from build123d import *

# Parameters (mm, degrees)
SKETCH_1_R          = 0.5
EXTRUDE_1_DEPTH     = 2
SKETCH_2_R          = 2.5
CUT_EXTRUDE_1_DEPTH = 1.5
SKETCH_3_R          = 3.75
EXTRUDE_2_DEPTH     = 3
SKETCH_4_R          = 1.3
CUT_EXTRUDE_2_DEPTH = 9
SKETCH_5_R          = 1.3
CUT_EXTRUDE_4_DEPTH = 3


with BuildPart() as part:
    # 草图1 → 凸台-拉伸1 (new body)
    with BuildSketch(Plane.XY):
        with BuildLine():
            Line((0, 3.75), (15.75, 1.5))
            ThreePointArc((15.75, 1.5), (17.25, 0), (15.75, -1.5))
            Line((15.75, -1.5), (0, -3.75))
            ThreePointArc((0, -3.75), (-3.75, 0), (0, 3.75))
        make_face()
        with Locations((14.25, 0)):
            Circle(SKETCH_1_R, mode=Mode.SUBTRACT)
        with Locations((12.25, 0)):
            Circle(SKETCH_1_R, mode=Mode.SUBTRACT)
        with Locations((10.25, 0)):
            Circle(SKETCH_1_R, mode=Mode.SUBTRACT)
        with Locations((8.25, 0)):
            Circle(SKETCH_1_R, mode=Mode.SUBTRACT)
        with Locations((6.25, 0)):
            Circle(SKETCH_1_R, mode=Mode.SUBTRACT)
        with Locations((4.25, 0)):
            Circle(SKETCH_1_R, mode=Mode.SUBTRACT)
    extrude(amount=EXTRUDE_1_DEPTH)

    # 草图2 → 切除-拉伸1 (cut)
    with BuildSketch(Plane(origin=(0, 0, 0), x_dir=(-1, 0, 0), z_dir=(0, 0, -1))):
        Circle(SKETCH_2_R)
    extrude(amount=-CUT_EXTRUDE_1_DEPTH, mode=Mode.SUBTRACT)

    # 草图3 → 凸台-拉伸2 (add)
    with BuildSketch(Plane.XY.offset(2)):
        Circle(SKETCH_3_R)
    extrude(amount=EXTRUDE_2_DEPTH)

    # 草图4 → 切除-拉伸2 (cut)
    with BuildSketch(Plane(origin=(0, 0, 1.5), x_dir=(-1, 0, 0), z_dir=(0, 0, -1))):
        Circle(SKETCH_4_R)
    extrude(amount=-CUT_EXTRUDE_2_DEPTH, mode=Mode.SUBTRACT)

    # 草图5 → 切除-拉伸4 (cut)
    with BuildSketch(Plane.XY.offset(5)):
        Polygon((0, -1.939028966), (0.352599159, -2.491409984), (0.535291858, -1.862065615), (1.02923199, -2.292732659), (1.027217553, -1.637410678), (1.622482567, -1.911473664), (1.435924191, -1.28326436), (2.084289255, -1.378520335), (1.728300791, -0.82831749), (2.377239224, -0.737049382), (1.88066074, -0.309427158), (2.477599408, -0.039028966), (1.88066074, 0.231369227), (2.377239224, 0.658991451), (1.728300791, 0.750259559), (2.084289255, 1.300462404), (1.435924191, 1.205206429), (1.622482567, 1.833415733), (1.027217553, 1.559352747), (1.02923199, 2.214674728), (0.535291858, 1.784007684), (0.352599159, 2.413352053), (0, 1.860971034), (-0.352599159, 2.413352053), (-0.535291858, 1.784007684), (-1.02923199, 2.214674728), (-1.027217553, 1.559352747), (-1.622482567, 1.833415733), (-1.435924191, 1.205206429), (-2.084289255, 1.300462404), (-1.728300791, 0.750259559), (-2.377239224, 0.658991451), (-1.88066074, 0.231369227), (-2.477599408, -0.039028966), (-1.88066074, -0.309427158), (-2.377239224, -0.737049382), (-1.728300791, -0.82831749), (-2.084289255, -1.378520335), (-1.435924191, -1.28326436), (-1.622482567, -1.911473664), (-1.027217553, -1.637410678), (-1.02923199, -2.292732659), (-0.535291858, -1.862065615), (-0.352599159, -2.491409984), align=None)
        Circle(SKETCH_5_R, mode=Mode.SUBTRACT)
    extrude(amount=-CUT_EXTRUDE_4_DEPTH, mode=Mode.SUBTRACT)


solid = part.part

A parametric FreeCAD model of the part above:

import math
import FreeCAD as App
import Part
import Sketcher

V = App.Vector


def add_polygon(sketch, points):
    """Adds a closed chain of lines whose ends are joined by coincident constraints."""
    first, n = sketch.GeometryCount, len(points)
    for a, b in zip(points, points[1:] + points[:1]):
        sketch.addGeometry(Part.LineSegment(App.Vector(*a, 0), App.Vector(*b, 0)), False)
    for i in range(n):
        sketch.addConstraint(Sketcher.Constraint("Coincident", first + i, 2, first + (i + 1) % n, 1))

doc = App.newDocument("Part")
params = doc.addObject("Spreadsheet::Sheet", "Params")
for row, (alias, value) in enumerate([
    ("sketch1_diameter", "1 mm"),
    ("sketch1_radius", "1.5 mm"),
    ("sketch1_radius2", "3.75 mm"),
    ("pad1_length", "2 mm"),
    ("sketch2_diameter", "5 mm"),
    ("pocket1_length", "1.5 mm"),
    ("sketch3_diameter", "7.5 mm"),
    ("pad2_length", "3 mm"),
    ("sketch4_diameter", "2.6 mm"),
    ("pocket2_length", "9 mm"),
    ("sketch5_diameter", "2.6 mm"),
    ("pocket3_length", "3 mm"),
], start=1):
    params.set(f"A{row}", alias)
    params.set(f"B{row}", "=" + value)
    params.setAlias(f"B{row}", alias)

body = doc.addObject("PartDesign::Body", "Body")

sketch1 = body.newObject("Sketcher::SketchObject", "Sketch")
sketch1.AttachmentSupport = (doc.getObject("XY_Plane"), [""])
sketch1.MapMode = "FlatFace"
sketch1.addGeometry(Part.LineSegment(V(15.75, 1.5, 0), V(0, 3.75, 0)), False)
sketch1.addGeometry(Part.ArcOfCircle(Part.Circle(V(0, 0, 0), V(0, 0, 1), 3.75), math.radians(90), math.radians(270)), False)
sketch1.addGeometry(Part.LineSegment(V(0, -3.75, 0), V(15.75, -1.5, 0)), False)
sketch1.addGeometry(Part.ArcOfCircle(Part.Circle(V(15.75, 0, 0), V(0, 0, 1), 1.5), math.radians(-90), math.radians(90)), False)
sketch1.addGeometry(Part.Circle(V(14.25, 0, 0), V(0, 0, 1), 0.5), False)
sketch1.addGeometry(Part.Circle(V(12.25, 0, 0), V(0, 0, 1), 0.5), False)
sketch1.addGeometry(Part.Circle(V(10.25, 0, 0), V(0, 0, 1), 0.5), False)
sketch1.addGeometry(Part.Circle(V(8.25, 0, 0), V(0, 0, 1), 0.5), False)
sketch1.addGeometry(Part.Circle(V(6.25, 0, 0), V(0, 0, 1), 0.5), False)
sketch1.addGeometry(Part.Circle(V(4.25, 0, 0), V(0, 0, 1), 0.5), False)
sketch1.addConstraint(Sketcher.Constraint("Coincident", 0, 2, 1, 1))
sketch1.addConstraint(Sketcher.Constraint("Coincident", 1, 2, 2, 1))
sketch1.addConstraint(Sketcher.Constraint("Coincident", 2, 2, 3, 1))
sketch1.addConstraint(Sketcher.Constraint("Coincident", 3, 2, 0, 1))
sketch1.addConstraint(Sketcher.Constraint("Coincident", 1, 3, -1, 1))
sketch1.addConstraint(Sketcher.Constraint("Equal", 4, 5))
sketch1.addConstraint(Sketcher.Constraint("Equal", 5, 6))
sketch1.addConstraint(Sketcher.Constraint("Equal", 6, 7))
sketch1.addConstraint(Sketcher.Constraint("Equal", 7, 8))
sketch1.addConstraint(Sketcher.Constraint("Equal", 8, 9))
sketch1.addConstraint(Sketcher.Constraint("Symmetric", 2, 2, 3, 2, -1))
sketch1.addConstraint(Sketcher.Constraint("PointOnObject", 4, 3, -1))
sketch1.addConstraint(Sketcher.Constraint("PointOnObject", 5, 3, -1))
sketch1.addConstraint(Sketcher.Constraint("PointOnObject", 6, 3, -1))
sketch1.addConstraint(Sketcher.Constraint("PointOnObject", 7, 3, -1))
sketch1.addConstraint(Sketcher.Constraint("PointOnObject", 8, 3, -1))
sketch1.addConstraint(Sketcher.Constraint("PointOnObject", 9, 3, -1))
sketch1.addConstraint(Sketcher.Constraint("PointOnObject", 0, 2, -2))
sketch1.addConstraint(Sketcher.Constraint("PointOnObject", 1, 2, -2))
sketch1.addConstraint(Sketcher.Constraint("Vertical", 3, 3, 2, 2))
sketch1.addConstraint(Sketcher.Constraint("Diameter", 4, 1.0))
sketch1.addConstraint(Sketcher.Constraint("Radius", 3, 1.5))
sketch1.addConstraint(Sketcher.Constraint("Radius", 1, 3.75))
sketch1.addConstraint(Sketcher.Constraint("DistanceX", 5, 3, 4, 3, 2.0))
sketch1.addConstraint(Sketcher.Constraint("DistanceX", 6, 3, 5, 3, 2.0))
sketch1.addConstraint(Sketcher.Constraint("DistanceX", 7, 3, 6, 3, 2.0))
sketch1.addConstraint(Sketcher.Constraint("DistanceX", 8, 3, 7, 3, 2.0))
sketch1.addConstraint(Sketcher.Constraint("DistanceX", 9, 3, 8, 3, 2.0))
sketch1.addConstraint(Sketcher.Constraint("DistanceX", 4, 3, 3, 3, 1.5))
sketch1.addConstraint(Sketcher.Constraint("DistanceX", -1, 1, 3, 3, 15.75))
sketch1.setExpression("Constraints[20]", "Params.sketch1_diameter")
sketch1.setExpression("Constraints[21]", "Params.sketch1_radius")
sketch1.setExpression("Constraints[22]", "Params.sketch1_radius2")
pad1 = body.newObject("PartDesign::Pad", "Pad")
pad1.Profile = sketch1
pad1.setExpression("Length", "Params.pad1_length")

sketch2 = body.newObject("Sketcher::SketchObject", "Sketch001")
sketch2.AttachmentSupport = (doc.getObject("XY_Plane"), [""])
sketch2.MapMode = "FlatFace"
sketch2.addGeometry(Part.Circle(V(0, 0, 0), V(0, 0, 1), 2.5), False)
sketch2.addConstraint(Sketcher.Constraint("Coincident", 0, 3, -1, 1))
sketch2.addConstraint(Sketcher.Constraint("Diameter", 0, 5.0))
sketch2.setExpression("Constraints[1]", "Params.sketch2_diameter")
pocket1 = body.newObject("PartDesign::Pocket", "Pocket")
pocket1.Profile = sketch2
pocket1.setExpression("Length", "Params.pocket1_length")
pocket1.Reversed = True

sketch3 = body.newObject("Sketcher::SketchObject", "Sketch002")
sketch3.AttachmentSupport = (doc.getObject("XY_Plane"), [""])
sketch3.MapMode = "FlatFace"
sketch3.AttachmentOffset = App.Placement(V(0, 0, 2), App.Rotation())
sketch3.addGeometry(Part.Circle(V(0, 0, 0), V(0, 0, 1), 3.75), False)
sketch3.addConstraint(Sketcher.Constraint("Coincident", 0, 3, -1, 1))
sketch3.addConstraint(Sketcher.Constraint("Diameter", 0, 7.5))
sketch3.setExpression("Constraints[1]", "Params.sketch3_diameter")
pad2 = body.newObject("PartDesign::Pad", "Pad001")
pad2.Profile = sketch3
pad2.setExpression("Length", "Params.pad2_length")

sketch4 = body.newObject("Sketcher::SketchObject", "Sketch003")
sketch4.AttachmentSupport = (doc.getObject("XY_Plane"), [""])
sketch4.MapMode = "FlatFace"
sketch4.AttachmentOffset = App.Placement(V(0, 0, 1.5), App.Rotation())
sketch4.addGeometry(Part.Circle(V(0, 0, 0), V(0, 0, 1), 1.3), False)
sketch4.addConstraint(Sketcher.Constraint("Coincident", 0, 3, -1, 1))
sketch4.addConstraint(Sketcher.Constraint("Diameter", 0, 2.6))
sketch4.setExpression("Constraints[1]", "Params.sketch4_diameter")
pocket2 = body.newObject("PartDesign::Pocket", "Pocket001")
pocket2.Profile = sketch4
pocket2.setExpression("Length", "Params.pocket2_length")
pocket2.Reversed = True

sketch5 = body.newObject("Sketcher::SketchObject", "Sketch004")
sketch5.AttachmentSupport = (doc.getObject("XY_Plane"), [""])
sketch5.MapMode = "FlatFace"
sketch5.AttachmentOffset = App.Placement(V(0, 0, 5), App.Rotation())
add_polygon(sketch5, [(0, -1.939029), (0.352599, -2.49141), (0.535292, -1.862066), (1.029232, -2.292733), (1.027218, -1.637411), (1.622483, -1.911474), (1.435924, -1.283264), (2.084289, -1.37852), (1.728301, -0.828317), (2.377239, -0.737049), (1.880661, -0.309427), (2.477599, -0.039029), (1.880661, 0.231369), (2.377239, 0.658991), (1.728301, 0.75026), (2.084289, 1.300462), (1.435924, 1.205206), (1.622483, 1.833416), (1.027218, 1.559353), (1.029232, 2.214675), (0.535292, 1.784008), (0.352599, 2.413352), (0, 1.860971), (-0.352599, 2.413352), (-0.535292, 1.784008), (-1.029232, 2.214675), (-1.027218, 1.559353), (-1.622483, 1.833416), (-1.435924, 1.205206), (-2.084289, 1.300462), (-1.728301, 0.75026), (-2.377239, 0.658991), (-1.880661, 0.231369), (-2.477599, -0.039029), (-1.880661, -0.309427), (-2.377239, -0.737049), (-1.728301, -0.828317), (-2.084289, -1.37852), (-1.435924, -1.283264), (-1.622483, -1.911474), (-1.027218, -1.637411), (-1.029232, -2.292733), (-0.535292, -1.862066), (-0.352599, -2.49141)])
sketch5.addGeometry(Part.Circle(V(0, 0, 0), V(0, 0, 1), 1.3), False)
sketch5.addConstraint(Sketcher.Constraint("Coincident", 44, 3, -1, 1))
sketch5.addConstraint(Sketcher.Constraint("PointOnObject", 21, 2, -2))
sketch5.addConstraint(Sketcher.Constraint("PointOnObject", 43, 2, -2))
sketch5.addConstraint(Sketcher.Constraint("Diameter", 44, 2.6))
sketch5.addConstraint(Sketcher.Constraint("DistanceY", 0, 2, 3, 2, 0.853999))
sketch5.addConstraint(Sketcher.Constraint("DistanceY", 17, 2, 20, 2, 0.853999))
sketch5.addConstraint(Sketcher.Constraint("DistanceY", 17, 2, 22, 2, 0.853999))
sketch5.addConstraint(Sketcher.Constraint("DistanceY", 25, 2, 22, 2, 0.853999))
sketch5.addConstraint(Sketcher.Constraint("DistanceY", 42, 2, 39, 2, 0.853999))
sketch5.addConstraint(Sketcher.Constraint("DistanceX", -1, 1, 0, 2, 0.352599))
sketch5.addConstraint(Sketcher.Constraint("DistanceX", -1, 1, 7, 2, 1.728301))
sketch5.addConstraint(Sketcher.Constraint("DistanceX", -1, 1, 10, 2, 2.477599))
sketch5.addConstraint(Sketcher.Constraint("DistanceX", -1, 1, 13, 2, 1.728301))
sketch5.addConstraint(Sketcher.Constraint("DistanceX", -1, 1, 20, 2, 0.352599))
sketch5.addConstraint(Sketcher.Constraint("DistanceX", 22, 2, -1, 1, 0.352599))
sketch5.addConstraint(Sketcher.Constraint("DistanceX", 29, 2, -1, 1, 1.728301))
sketch5.addConstraint(Sketcher.Constraint("DistanceX", 32, 2, -1, 1, 2.477599))
sketch5.addConstraint(Sketcher.Constraint("DistanceX", 35, 2, -1, 1, 1.728301))
sketch5.addConstraint(Sketcher.Constraint("DistanceX", 42, 2, -1, 1, 0.352599))
sketch5.addConstraint(Sketcher.Constraint("DistanceY", 1, 2, 5, 2, 0.578801))
sketch5.addConstraint(Sketcher.Constraint("DistanceY", 9, 2, 10, 2, 0.270398))
sketch5.addConstraint(Sketcher.Constraint("DistanceY", 10, 2, 11, 2, 0.270398))
sketch5.addConstraint(Sketcher.Constraint("DistanceY", 15, 2, 19, 2, 0.578801))
sketch5.addConstraint(Sketcher.Constraint("DistanceY", 27, 2, 23, 2, 0.578801))
sketch5.addConstraint(Sketcher.Constraint("DistanceY", 32, 2, 31, 2, 0.270398))
sketch5.addConstraint(Sketcher.Constraint("DistanceY", 33, 2, 32, 2, 0.270398))
sketch5.addConstraint(Sketcher.Constraint("DistanceY", 41, 2, 37, 2, 0.578801))
sketch5.addConstraint(Sketcher.Constraint("DistanceY", 0, 2, -1, 1, 2.49141))
sketch5.addConstraint(Sketcher.Constraint("DistanceX", -1, 1, 1, 2, 0.535292))
sketch5.addConstraint(Sketcher.Constraint("DistanceX", -1, 1, 2, 2, 1.029232))
sketch5.addConstraint(Sketcher.Constraint("DistanceX", -1, 1, 6, 2, 2.084289))
sketch5.addConstraint(Sketcher.Constraint("DistanceY", 6, 2, -1, 1, 1.37852))
sketch5.addConstraint(Sketcher.Constraint("DistanceX", -1, 1, 8, 2, 2.377239))
sketch5.addConstraint(Sketcher.Constraint("DistanceY", 8, 2, -1, 1, 0.737049))
sketch5.addConstraint(Sketcher.Constraint("DistanceX", -1, 1, 9, 2, 1.880661))
sketch5.addConstraint(Sketcher.Constraint("DistanceY", 10, 2, -1, 1, 0.039029))
sketch5.addConstraint(Sketcher.Constraint("DistanceX", -1, 1, 11, 2, 1.880661))
sketch5.addConstraint(Sketcher.Constraint("DistanceX", -1, 1, 12, 2, 2.377239))
sketch5.addConstraint(Sketcher.Constraint("DistanceY", -1, 1, 12, 2, 0.658991))
sketch5.addConstraint(Sketcher.Constraint("DistanceY", -1, 1, 13, 2, 0.75026))
sketch5.addConstraint(Sketcher.Constraint("DistanceX", -1, 1, 14, 2, 2.084289))
sketch5.addConstraint(Sketcher.Constraint("DistanceX", -1, 1, 18, 2, 1.029232))
sketch5.addConstraint(Sketcher.Constraint("DistanceX", -1, 1, 19, 2, 0.535292))
sketch5.addConstraint(Sketcher.Constraint("DistanceY", -1, 1, 21, 2, 1.860971))
sketch5.addConstraint(Sketcher.Constraint("DistanceX", 23, 2, -1, 1, 0.535292))
sketch5.addConstraint(Sketcher.Constraint("DistanceX", 24, 2, -1, 1, 1.029232))
sketch5.addConstraint(Sketcher.Constraint("DistanceX", 28, 2, -1, 1, 2.084289))
sketch5.addConstraint(Sketcher.Constraint("DistanceY", -1, 1, 29, 2, 0.75026))
sketch5.addConstraint(Sketcher.Constraint("DistanceX", 30, 2, -1, 1, 2.377239))
sketch5.addConstraint(Sketcher.Constraint("DistanceY", -1, 1, 30, 2, 0.658991))
sketch5.addConstraint(Sketcher.Constraint("DistanceX", 31, 2, -1, 1, 1.880661))
sketch5.addConstraint(Sketcher.Constraint("DistanceY", -1, 1, 31, 2, 0.231369))
sketch5.addConstraint(Sketcher.Constraint("DistanceX", 33, 2, -1, 1, 1.880661))
sketch5.addConstraint(Sketcher.Constraint("DistanceX", 34, 2, -1, 1, 2.377239))
sketch5.addConstraint(Sketcher.Constraint("DistanceY", 34, 2, -1, 1, 0.737049))
sketch5.addConstraint(Sketcher.Constraint("DistanceX", 36, 2, -1, 1, 2.084289))
sketch5.addConstraint(Sketcher.Constraint("DistanceY", 36, 2, -1, 1, 1.37852))
sketch5.addConstraint(Sketcher.Constraint("DistanceY", 39, 2, -1, 1, 1.637411))
sketch5.addConstraint(Sketcher.Constraint("DistanceX", 40, 2, -1, 1, 1.029232))
sketch5.addConstraint(Sketcher.Constraint("DistanceX", 41, 2, -1, 1, 0.535292))
sketch5.addConstraint(Sketcher.Constraint("DistanceY", 43, 2, -1, 1, 1.939029))
sketch5.addConstraint(Sketcher.Constraint("DistanceY", 2, 2, 3, 2, 0.655322))
sketch5.addConstraint(Sketcher.Constraint("DistanceX", 0, 2, 3, 2, 0.674618))
sketch5.addConstraint(Sketcher.Constraint("DistanceX", 2, 2, 4, 2, 0.593251))
sketch5.addConstraint(Sketcher.Constraint("DistanceY", 2, 2, 4, 2, 0.381259))
sketch5.addConstraint(Sketcher.Constraint("DistanceY", 4, 2, 1, 2, 0.049408))
sketch5.addConstraint(Sketcher.Constraint("DistanceX", 5, 2, 4, 2, 0.186558))
sketch5.addConstraint(Sketcher.Constraint("DistanceY", 1, 2, 7, 2, 1.033748))
sketch5.addConstraint(Sketcher.Constraint("DistanceY", 12, 2, 14, 2, 0.641471))
sketch5.addConstraint(Sketcher.Constraint("DistanceX", 15, 2, 16, 2, 0.186558))
sketch5.addConstraint(Sketcher.Constraint("DistanceY", 15, 2, 16, 2, 0.628209))
sketch5.addConstraint(Sketcher.Constraint("DistanceX", 16, 2, 13, 2, 0.105818))
sketch5.addConstraint(Sketcher.Constraint("DistanceX", 17, 2, 14, 2, 1.057072))
sketch5.addConstraint(Sketcher.Constraint("DistanceY", 14, 2, 17, 2, 0.25889))
sketch5.addConstraint(Sketcher.Constraint("DistanceY", 17, 2, 18, 2, 0.655322))
sketch5.addConstraint(Sketcher.Constraint("DistanceY", 16, 2, 18, 2, 0.381259))
sketch5.addConstraint(Sketcher.Constraint("DistanceY", 25, 2, 24, 2, 0.655322))
sketch5.addConstraint(Sketcher.Constraint("DistanceX", 25, 2, 22, 2, 0.674618))
sketch5.addConstraint(Sketcher.Constraint("DistanceX", 26, 2, 24, 2, 0.593251))
sketch5.addConstraint(Sketcher.Constraint("DistanceY", 26, 2, 24, 2, 0.381259))
sketch5.addConstraint(Sketcher.Constraint("DistanceY", 23, 2, 26, 2, 0.049408))
sketch5.addConstraint(Sketcher.Constraint("DistanceX", 26, 2, 27, 2, 0.186558))
sketch5.addConstraint(Sketcher.Constraint("DistanceY", 28, 2, 25, 2, 0.25889))
sketch5.addConstraint(Sketcher.Constraint("DistanceY", 35, 2, 33, 2, 0.51889))
sketch5.addConstraint(Sketcher.Constraint("DistanceX", 38, 2, 37, 2, 0.186558))
sketch5.addConstraint(Sketcher.Constraint("DistanceY", 38, 2, 37, 2, 0.628209))
sketch5.addConstraint(Sketcher.Constraint("DistanceX", 35, 2, 38, 2, 0.105818))
sketch5.addConstraint(Sketcher.Constraint("DistanceX", 36, 2, 39, 2, 1.057072))
sketch5.addConstraint(Sketcher.Constraint("DistanceY", 40, 2, 39, 2, 0.655322))
sketch5.addConstraint(Sketcher.Constraint("DistanceY", 40, 2, 38, 2, 0.381259))
sketch5.setExpression("Constraints[47]", "Params.sketch5_diameter")
pocket3 = body.newObject("PartDesign::Pocket", "Pocket002")
pocket3.Profile = sketch5
pocket3.setExpression("Length", "Params.pocket3_length")

doc.recompute()
